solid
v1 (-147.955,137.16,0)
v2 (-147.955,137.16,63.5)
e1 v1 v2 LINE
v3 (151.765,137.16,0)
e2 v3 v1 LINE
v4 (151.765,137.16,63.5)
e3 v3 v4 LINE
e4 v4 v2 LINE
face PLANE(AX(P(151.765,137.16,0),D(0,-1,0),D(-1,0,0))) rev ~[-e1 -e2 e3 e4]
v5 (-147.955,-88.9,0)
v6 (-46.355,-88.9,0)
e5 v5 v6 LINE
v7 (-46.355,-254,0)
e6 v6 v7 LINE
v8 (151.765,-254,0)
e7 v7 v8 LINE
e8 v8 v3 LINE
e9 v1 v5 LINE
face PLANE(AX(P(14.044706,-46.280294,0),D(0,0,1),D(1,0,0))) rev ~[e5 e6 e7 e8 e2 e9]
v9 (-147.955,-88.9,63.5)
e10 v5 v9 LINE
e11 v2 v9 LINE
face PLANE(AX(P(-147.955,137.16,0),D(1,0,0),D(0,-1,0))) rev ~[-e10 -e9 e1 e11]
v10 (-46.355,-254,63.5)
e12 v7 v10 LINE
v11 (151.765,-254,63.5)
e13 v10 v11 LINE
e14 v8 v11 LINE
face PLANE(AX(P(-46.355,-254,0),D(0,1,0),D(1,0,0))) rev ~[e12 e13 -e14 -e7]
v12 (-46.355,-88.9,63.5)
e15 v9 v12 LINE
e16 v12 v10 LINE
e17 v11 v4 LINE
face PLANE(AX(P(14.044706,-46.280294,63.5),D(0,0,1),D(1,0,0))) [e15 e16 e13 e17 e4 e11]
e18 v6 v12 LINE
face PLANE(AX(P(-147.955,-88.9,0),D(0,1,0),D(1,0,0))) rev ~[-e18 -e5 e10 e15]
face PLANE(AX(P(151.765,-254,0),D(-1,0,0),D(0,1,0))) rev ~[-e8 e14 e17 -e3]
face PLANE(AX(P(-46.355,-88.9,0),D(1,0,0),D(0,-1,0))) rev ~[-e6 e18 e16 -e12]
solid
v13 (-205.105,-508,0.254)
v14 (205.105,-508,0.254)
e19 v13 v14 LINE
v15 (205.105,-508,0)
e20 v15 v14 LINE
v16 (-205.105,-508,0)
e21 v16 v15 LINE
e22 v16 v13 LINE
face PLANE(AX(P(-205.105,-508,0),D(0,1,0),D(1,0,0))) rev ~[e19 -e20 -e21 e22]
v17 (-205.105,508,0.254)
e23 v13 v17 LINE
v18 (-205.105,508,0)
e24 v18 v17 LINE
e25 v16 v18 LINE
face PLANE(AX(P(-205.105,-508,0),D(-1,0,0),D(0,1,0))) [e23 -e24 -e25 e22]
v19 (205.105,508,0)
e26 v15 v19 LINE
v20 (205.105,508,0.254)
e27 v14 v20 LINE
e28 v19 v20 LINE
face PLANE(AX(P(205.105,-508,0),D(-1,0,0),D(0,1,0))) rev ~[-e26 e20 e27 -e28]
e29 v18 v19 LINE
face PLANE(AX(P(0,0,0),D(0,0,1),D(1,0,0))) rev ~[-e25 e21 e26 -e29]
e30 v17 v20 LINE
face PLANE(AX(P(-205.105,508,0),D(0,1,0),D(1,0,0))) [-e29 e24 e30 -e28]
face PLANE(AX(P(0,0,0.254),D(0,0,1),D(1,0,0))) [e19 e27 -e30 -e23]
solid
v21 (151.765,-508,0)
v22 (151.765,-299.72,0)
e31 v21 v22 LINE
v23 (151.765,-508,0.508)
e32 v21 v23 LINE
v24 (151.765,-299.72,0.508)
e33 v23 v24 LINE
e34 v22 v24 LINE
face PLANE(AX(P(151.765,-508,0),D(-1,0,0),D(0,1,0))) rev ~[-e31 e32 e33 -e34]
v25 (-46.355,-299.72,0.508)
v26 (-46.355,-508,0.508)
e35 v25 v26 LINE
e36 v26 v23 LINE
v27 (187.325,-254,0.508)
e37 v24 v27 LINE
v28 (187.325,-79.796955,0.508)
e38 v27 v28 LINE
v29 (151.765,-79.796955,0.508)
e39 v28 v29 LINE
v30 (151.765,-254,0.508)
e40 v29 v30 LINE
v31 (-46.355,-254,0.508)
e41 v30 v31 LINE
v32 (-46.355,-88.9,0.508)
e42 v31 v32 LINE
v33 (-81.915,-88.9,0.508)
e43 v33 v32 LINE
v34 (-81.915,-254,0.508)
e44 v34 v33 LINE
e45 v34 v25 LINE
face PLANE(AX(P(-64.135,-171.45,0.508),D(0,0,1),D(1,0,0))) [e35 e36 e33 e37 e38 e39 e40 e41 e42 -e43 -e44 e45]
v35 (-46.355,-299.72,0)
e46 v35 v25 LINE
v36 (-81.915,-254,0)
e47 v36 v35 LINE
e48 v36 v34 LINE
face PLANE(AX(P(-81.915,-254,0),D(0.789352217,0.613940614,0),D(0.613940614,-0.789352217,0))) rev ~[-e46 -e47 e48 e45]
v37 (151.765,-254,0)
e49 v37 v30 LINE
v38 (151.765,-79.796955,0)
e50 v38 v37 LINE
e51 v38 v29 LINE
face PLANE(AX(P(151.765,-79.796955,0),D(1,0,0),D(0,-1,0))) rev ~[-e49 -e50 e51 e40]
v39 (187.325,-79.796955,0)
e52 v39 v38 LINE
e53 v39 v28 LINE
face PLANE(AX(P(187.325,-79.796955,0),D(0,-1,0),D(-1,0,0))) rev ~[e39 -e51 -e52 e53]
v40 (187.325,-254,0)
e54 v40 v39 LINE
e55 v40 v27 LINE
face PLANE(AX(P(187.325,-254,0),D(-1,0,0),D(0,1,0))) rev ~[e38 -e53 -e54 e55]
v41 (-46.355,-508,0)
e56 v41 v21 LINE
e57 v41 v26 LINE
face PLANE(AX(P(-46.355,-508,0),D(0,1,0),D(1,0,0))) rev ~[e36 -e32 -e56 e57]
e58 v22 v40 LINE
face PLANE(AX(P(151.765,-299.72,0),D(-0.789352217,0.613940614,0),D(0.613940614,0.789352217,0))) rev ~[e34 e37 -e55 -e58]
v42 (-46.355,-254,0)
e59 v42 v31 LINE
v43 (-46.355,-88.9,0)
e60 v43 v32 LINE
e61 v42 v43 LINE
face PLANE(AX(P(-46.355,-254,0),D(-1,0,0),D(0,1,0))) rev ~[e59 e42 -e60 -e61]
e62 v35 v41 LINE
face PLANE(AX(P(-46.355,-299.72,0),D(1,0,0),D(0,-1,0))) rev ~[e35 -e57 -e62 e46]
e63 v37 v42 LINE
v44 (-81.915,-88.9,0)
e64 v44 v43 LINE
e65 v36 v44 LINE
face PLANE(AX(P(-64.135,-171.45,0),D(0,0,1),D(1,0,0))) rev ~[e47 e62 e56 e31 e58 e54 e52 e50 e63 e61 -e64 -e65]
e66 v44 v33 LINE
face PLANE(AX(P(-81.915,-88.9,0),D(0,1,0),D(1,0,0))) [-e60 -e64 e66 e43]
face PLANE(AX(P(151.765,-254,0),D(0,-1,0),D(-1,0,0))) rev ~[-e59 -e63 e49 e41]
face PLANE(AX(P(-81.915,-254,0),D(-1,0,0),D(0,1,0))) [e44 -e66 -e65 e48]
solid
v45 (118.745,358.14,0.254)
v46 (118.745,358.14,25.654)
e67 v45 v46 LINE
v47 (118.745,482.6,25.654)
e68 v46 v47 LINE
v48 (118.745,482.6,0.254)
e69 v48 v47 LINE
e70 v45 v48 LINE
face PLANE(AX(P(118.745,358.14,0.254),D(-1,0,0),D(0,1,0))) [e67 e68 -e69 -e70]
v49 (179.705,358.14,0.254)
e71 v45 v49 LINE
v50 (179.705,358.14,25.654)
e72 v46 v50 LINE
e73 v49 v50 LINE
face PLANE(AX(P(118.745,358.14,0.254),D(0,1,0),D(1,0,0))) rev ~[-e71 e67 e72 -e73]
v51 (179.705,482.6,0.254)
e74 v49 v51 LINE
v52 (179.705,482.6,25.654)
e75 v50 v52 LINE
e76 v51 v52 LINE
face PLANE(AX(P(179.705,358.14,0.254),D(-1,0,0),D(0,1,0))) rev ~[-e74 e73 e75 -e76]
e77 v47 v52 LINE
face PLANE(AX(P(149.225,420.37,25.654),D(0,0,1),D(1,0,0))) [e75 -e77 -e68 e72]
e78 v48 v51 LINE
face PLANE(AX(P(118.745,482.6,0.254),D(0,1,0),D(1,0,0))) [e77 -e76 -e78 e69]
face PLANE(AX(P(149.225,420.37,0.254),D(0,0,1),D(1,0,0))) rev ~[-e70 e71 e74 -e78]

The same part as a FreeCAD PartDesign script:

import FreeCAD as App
import Part
import Sketcher

V = App.Vector
Q = App.Units.Quantity

doc = App.newDocument("Part")
body = doc.addObject("PartDesign::Body", "Body")

# Sketch on XY plane
sketch1 = doc.addObject("Sketcher::SketchObject", "Sketch")
body.addObject(sketch1)
sketch1.AttachmentSupport = (doc.XY_Plane, [""])
sketch1.MapMode = "FlatFace"
sketch1.addGeometry(Part.LineSegment(V(151.765, 137.16, 0), V(-147.955, 137.16, 0)), False)
sketch1.addGeometry(Part.LineSegment(V(-147.955, 137.16, 0), V(-147.955, -88.9, 0)), False)
sketch1.addGeometry(Part.LineSegment(V(-147.955, -88.9, 0), V(-46.355, -88.9, 0)), False)
sketch1.addGeometry(Part.LineSegment(V(-46.355, -88.9, 0), V(-46.355, -254, 0)), False)
sketch1.addGeometry(Part.LineSegment(V(-46.355, -254, 0), V(151.765, -254, 0)), False)
sketch1.addGeometry(Part.LineSegment(V(151.765, -254, 0), V(151.765, 137.16, 0)), False)
sketch1.addConstraint(Sketcher.Constraint("Coincident", 0, 2, 1, 1))
sketch1.addConstraint(Sketcher.Constraint("Coincident", 1, 2, 2, 1))
sketch1.addConstraint(Sketcher.Constraint("Coincident", 2, 2, 3, 1))
sketch1.addConstraint(Sketcher.Constraint("Coincident", 3, 2, 4, 1))
sketch1.addConstraint(Sketcher.Constraint("Coincident", 4, 2, 5, 1))
sketch1.addConstraint(Sketcher.Constraint("Coincident", 5, 2, 0, 1))
sketch1.addConstraint(Sketcher.Constraint("Horizontal", 0))
sketch1.addConstraint(Sketcher.Constraint("Vertical", 1))
sketch1.addConstraint(Sketcher.Constraint("Horizontal", 2))
sketch1.addConstraint(Sketcher.Constraint("Vertical", 3))
sketch1.addConstraint(Sketcher.Constraint("Horizontal", 4))
sketch1.addConstraint(Sketcher.Constraint("Vertical", 5))
sketch1.addConstraint(Sketcher.Constraint("DistanceX", 2, 1, 2, 2, Q("4 in")))
sketch1.addConstraint(Sketcher.Constraint("DistanceX", 0, 2, 0, 1, Q("11.8 in")))
sketch1.addConstraint(Sketcher.Constraint("DistanceY", 1, 2, 1, 1, Q("8.9 in")))
sketch1.addConstraint(Sketcher.Constraint("DistanceY", 3, 2, 3, 1, Q("6.5 in")))
sketch1.addConstraint(Sketcher.Constraint("DistanceY", 3, 2, -1, 1, Q("10 in")))
sketch1.addConstraint(Sketcher.Constraint("DistanceX", 0, 2, -1, 1, Q("5.825 in")))
pad1 = doc.addObject("PartDesign::Pad", "Pad")
body.addObject(pad1)
pad1.Profile = sketch1
pad1.Length = Q("2.5 in")
body2 = doc.addObject("PartDesign::Body", "Body001")

# Sketch on XY plane
sketch2 = doc.addObject("Sketcher::SketchObject", "Sketch001")
body2.addObject(sketch2)
sketch2.AttachmentSupport = (doc.getObject("XY_Plane001"), [""])
sketch2.MapMode = "FlatFace"
sketch2.addGeometry(Part.LineSegment(V(-81.915, -88.9, 0), V(-81.915, -254, 0)), False)
sketch2.addGeometry(Part.LineSegment(V(-81.915, -254, 0), V(-46.355, -299.72, 0)), False)
sketch2.addGeometry(Part.LineSegment(V(-46.355, -299.72, 0), V(-46.355, -508, 0)), False)
sketch2.addGeometry(Part.LineSegment(V(-46.355, -508, 0), V(151.765, -508, 0)), False)
sketch2.addGeometry(Part.LineSegment(V(151.765, -508, 0), V(151.765, -299.72, 0)), False)
sketch2.addGeometry(Part.LineSegment(V(151.765, -299.72, 0), V(187.325, -254, 0)), False)
sketch2.addGeometry(Part.LineSegment(V(187.325, -254, 0), V(187.325, -79.796955, 0)), False)
sketch2.addGeometry(Part.LineSegment(V(187.325, -79.796955, 0), V(151.765, -79.796955, 0)), False)
sketch2.addGeometry(Part.LineSegment(V(151.765, -79.796955, 0), V(151.765, -254, 0)), False)
sketch2.addGeometry(Part.LineSegment(V(151.765, -254, 0), V(-46.355, -254, 0)), False)
sketch2.addGeometry(Part.LineSegment(V(-46.355, -254, 0), V(-46.355, -88.9, 0)), False)
sketch2.addGeometry(Part.LineSegment(V(-46.355, -88.9, 0), V(-81.915, -88.9, 0)), False)
sketch2.addConstraint(Sketcher.Constraint("Coincident", 0, 2, 1, 1))
sketch2.addConstraint(Sketcher.Constraint("Coincident", 1, 2, 2, 1))
sketch2.addConstraint(Sketcher.Constraint("Coincident", 2, 2, 3, 1))
sketch2.addConstraint(Sketcher.Constraint("Coincident", 3, 2, 4, 1))
sketch2.addConstraint(Sketcher.Constraint("Coincident", 4, 2, 5, 1))
sketch2.addConstraint(Sketcher.Constraint("Coincident", 5, 2, 6, 1))
sketch2.addConstraint(Sketcher.Constraint("Coincident", 6, 2, 7, 1))
sketch2.addConstraint(Sketcher.Constraint("Coincident", 7, 2, 8, 1))
sketch2.addConstraint(Sketcher.Constraint("Coincident", 8, 2, 9, 1))
sketch2.addConstraint(Sketcher.Constraint("Coincident", 9, 2, 10, 1))
sketch2.addConstraint(Sketcher.Constraint("Coincident", 10, 2, 11, 1))
sketch2.addConstraint(Sketcher.Constraint("Coincident", 11, 2, 0, 1))
sketch2.addConstraint(Sketcher.Constraint("Vertical", 0))
sketch2.addConstraint(Sketcher.Constraint("Vertical", 2))
sketch2.addConstraint(Sketcher.Constraint("Horizontal", 3))
sketch2.addConstraint(Sketcher.Constraint("Vertical", 4))
sketch2.addConstraint(Sketcher.Constraint("Vertical", 6))
sketch2.addConstraint(Sketcher.Constraint("Horizontal", 7))
sketch2.addConstraint(Sketcher.Constraint("Vertical", 8))
sketch2.addConstraint(Sketcher.Constraint("Horizontal", 9))
sketch2.addConstraint(Sketcher.Constraint("Vertical", 10))
sketch2.addConstraint(Sketcher.Constraint("Horizontal", 11))
sketch2.addConstraint(Sketcher.Constraint("Horizontal", 1, 2, 4, 2))
sketch2.addConstraint(Sketcher.Constraint("Horizontal", 0, 2, 5, 2))
sketch2.addConstraint(Sketcher.Constraint("Horizontal", 5, 2, 8, 2))
sketch2.addConstraint(Sketcher.Constraint("Vertical", 4, 2, 7, 2))
sketch2.addConstraint(Sketcher.Constraint("Vertical", 2, 2, 9, 2))
sketch2.addConstraint(Sketcher.Constraint("Equal", 7, 11))
sketch2.addConstraint(Sketcher.Constraint("DistanceX", 3, 1, 3, 2, Q("7.8 in")))
sketch2.addConstraint(Sketcher.Constraint("DistanceX", 7, 2, 7, 1, Q("1.4 in")))
sketch2.addConstraint(Sketcher.Constraint("DistanceY", 0, 2, 0, 1, Q("6.5 in")))
sketch2.addConstraint(Sketcher.Constraint("DistanceY", 2, 2, 2, 1, Q("8.2 in")))
sketch2.addConstraint(Sketcher.Constraint("DistanceY", 0, 2, -1, 1, Q("10 in")))
sketch2.addConstraint(Sketcher.Constraint("DistanceY", 2, 2, -1, 1, Q("20 in")))
sketch2.addConstraint(Sketcher.Constraint("DistanceX", 0, 2, -1, 1, Q("3.225 in")))
sketch2.addConstraint(Sketcher.Constraint("DistanceY", 6, 1, 6, 2, Q("174.203045 mm")))
pad2 = doc.addObject("PartDesign::Pad", "Pad001")
body2.addObject(pad2)
pad2.Profile = sketch2
pad2.Length = Q("0.02 in")
body3 = doc.addObject("PartDesign::Body", "Body002")

# Sketch on XY plane
sketch3 = doc.addObject("Sketcher::SketchObject", "Sketch002")
body3.addObject(sketch3)
sketch3.AttachmentSupport = (doc.getObject("XY_Plane002"), [""])
sketch3.MapMode = "FlatFace"
sketch3.addGeometry(Part.LineSegment(V(-205.105, 508, 0), V(-205.105, -508, 0)), False)
sketch3.addGeometry(Part.LineSegment(V(-205.105, -508, 0), V(205.105, -508, 0)), False)
sketch3.addGeometry(Part.LineSegment(V(205.105, -508, 0), V(205.105, 508, 0)), False)
sketch3.addGeometry(Part.LineSegment(V(205.105, 508, 0), V(-205.105, 508, 0)), False)
sketch3.addConstraint(Sketcher.Constraint("Coincident", 0, 2, 1, 1))
sketch3.addConstraint(Sketcher.Constraint("Coincident", 1, 2, 2, 1))
sketch3.addConstraint(Sketcher.Constraint("Coincident", 2, 2, 3, 1))
sketch3.addConstraint(Sketcher.Constraint("Coincident", 3, 2, 0, 1))
sketch3.addConstraint(Sketcher.Constraint("Vertical", 0))
sketch3.addConstraint(Sketcher.Constraint("Horizontal", 1))
sketch3.addConstraint(Sketcher.Constraint("Vertical", 2))
sketch3.addConstraint(Sketcher.Constraint("Horizontal", 3))
sketch3.addConstraint(Sketcher.Constraint("Symmetric", 0, 2, 2, 2, -1, 1))
sketch3.addConstraint(Sketcher.Constraint("DistanceY", 0, 2, 0, 1, Q("40 in")))
sketch3.addConstraint(Sketcher.Constraint("DistanceX", 1, 1, 1, 2, Q("16.15 in")))
pad3 = doc.addObject("PartDesign::Pad", "Pad002")
body3.addObject(pad3)
pad3.Profile = sketch3
pad3.Length = Q("0.01 in")
body4 = doc.addObject("PartDesign::Body", "Body003")

# Sketch on XY plane
sketch4 = doc.addObject("Sketcher::SketchObject", "Sketch003")
body4.addObject(sketch4)
sketch4.AttachmentSupport = (doc.getObject("XY_Plane003"), [""])
sketch4.MapMode = "FlatFace"
sketch4.AttachmentOffset = App.Placement(V(0, 0, 0.01 * 25.4), App.Rotation())
sketch4.addGeometry(Part.LineSegment(V(118.745, 482.6, 0), V(118.745, 358.14, 0)), False)
sketch4.addGeometry(Part.LineSegment(V(118.745, 358.14, 0), V(179.705, 358.14, 0)), False)
sketch4.addGeometry(Part.LineSegment(V(179.705, 358.14, 0), V(179.705, 482.6, 0)), False)
sketch4.addGeometry(Part.LineSegment(V(179.705, 482.6, 0), V(118.745, 482.6, 0)), False)
sketch4.addConstraint(Sketcher.Constraint("Coincident", 0, 2, 1, 1))
sketch4.addConstraint(Sketcher.Constraint("Coincident", 1, 2, 2, 1))
sketch4.addConstraint(Sketcher.Constraint("Coincident", 2, 2, 3, 1))
sketch4.addConstraint(Sketcher.Constraint("Coincident", 3, 2, 0, 1))
sketch4.addConstraint(Sketcher.Constraint("Vertical", 0))
sketch4.addConstraint(Sketcher.Constraint("Horizontal", 1))
sketch4.addConstraint(Sketcher.Constraint("Vertical", 2))
sketch4.addConstraint(Sketcher.Constraint("Horizontal", 3))
sketch4.addConstraint(Sketcher.Constraint("DistanceX", 1, 1, 1, 2, Q("2.4 in")))
sketch4.addConstraint(Sketcher.Constraint("DistanceY", 0, 2, 0, 1, Q("4.9 in")))
sketch4.addConstraint(Sketcher.Constraint("DistanceY", -1, 1, 2, 2, Q("19 in")))
sketch4.addConstraint(Sketcher.Constraint("DistanceX", -1, 1, 0, 2, Q("4.675 in")))
pad4 = doc.addObject("PartDesign::Pad", "Pad003")
body4.addObject(pad4)
pad4.Profile = sketch4
pad4.Length = Q("1 in")

doc.recompute()
